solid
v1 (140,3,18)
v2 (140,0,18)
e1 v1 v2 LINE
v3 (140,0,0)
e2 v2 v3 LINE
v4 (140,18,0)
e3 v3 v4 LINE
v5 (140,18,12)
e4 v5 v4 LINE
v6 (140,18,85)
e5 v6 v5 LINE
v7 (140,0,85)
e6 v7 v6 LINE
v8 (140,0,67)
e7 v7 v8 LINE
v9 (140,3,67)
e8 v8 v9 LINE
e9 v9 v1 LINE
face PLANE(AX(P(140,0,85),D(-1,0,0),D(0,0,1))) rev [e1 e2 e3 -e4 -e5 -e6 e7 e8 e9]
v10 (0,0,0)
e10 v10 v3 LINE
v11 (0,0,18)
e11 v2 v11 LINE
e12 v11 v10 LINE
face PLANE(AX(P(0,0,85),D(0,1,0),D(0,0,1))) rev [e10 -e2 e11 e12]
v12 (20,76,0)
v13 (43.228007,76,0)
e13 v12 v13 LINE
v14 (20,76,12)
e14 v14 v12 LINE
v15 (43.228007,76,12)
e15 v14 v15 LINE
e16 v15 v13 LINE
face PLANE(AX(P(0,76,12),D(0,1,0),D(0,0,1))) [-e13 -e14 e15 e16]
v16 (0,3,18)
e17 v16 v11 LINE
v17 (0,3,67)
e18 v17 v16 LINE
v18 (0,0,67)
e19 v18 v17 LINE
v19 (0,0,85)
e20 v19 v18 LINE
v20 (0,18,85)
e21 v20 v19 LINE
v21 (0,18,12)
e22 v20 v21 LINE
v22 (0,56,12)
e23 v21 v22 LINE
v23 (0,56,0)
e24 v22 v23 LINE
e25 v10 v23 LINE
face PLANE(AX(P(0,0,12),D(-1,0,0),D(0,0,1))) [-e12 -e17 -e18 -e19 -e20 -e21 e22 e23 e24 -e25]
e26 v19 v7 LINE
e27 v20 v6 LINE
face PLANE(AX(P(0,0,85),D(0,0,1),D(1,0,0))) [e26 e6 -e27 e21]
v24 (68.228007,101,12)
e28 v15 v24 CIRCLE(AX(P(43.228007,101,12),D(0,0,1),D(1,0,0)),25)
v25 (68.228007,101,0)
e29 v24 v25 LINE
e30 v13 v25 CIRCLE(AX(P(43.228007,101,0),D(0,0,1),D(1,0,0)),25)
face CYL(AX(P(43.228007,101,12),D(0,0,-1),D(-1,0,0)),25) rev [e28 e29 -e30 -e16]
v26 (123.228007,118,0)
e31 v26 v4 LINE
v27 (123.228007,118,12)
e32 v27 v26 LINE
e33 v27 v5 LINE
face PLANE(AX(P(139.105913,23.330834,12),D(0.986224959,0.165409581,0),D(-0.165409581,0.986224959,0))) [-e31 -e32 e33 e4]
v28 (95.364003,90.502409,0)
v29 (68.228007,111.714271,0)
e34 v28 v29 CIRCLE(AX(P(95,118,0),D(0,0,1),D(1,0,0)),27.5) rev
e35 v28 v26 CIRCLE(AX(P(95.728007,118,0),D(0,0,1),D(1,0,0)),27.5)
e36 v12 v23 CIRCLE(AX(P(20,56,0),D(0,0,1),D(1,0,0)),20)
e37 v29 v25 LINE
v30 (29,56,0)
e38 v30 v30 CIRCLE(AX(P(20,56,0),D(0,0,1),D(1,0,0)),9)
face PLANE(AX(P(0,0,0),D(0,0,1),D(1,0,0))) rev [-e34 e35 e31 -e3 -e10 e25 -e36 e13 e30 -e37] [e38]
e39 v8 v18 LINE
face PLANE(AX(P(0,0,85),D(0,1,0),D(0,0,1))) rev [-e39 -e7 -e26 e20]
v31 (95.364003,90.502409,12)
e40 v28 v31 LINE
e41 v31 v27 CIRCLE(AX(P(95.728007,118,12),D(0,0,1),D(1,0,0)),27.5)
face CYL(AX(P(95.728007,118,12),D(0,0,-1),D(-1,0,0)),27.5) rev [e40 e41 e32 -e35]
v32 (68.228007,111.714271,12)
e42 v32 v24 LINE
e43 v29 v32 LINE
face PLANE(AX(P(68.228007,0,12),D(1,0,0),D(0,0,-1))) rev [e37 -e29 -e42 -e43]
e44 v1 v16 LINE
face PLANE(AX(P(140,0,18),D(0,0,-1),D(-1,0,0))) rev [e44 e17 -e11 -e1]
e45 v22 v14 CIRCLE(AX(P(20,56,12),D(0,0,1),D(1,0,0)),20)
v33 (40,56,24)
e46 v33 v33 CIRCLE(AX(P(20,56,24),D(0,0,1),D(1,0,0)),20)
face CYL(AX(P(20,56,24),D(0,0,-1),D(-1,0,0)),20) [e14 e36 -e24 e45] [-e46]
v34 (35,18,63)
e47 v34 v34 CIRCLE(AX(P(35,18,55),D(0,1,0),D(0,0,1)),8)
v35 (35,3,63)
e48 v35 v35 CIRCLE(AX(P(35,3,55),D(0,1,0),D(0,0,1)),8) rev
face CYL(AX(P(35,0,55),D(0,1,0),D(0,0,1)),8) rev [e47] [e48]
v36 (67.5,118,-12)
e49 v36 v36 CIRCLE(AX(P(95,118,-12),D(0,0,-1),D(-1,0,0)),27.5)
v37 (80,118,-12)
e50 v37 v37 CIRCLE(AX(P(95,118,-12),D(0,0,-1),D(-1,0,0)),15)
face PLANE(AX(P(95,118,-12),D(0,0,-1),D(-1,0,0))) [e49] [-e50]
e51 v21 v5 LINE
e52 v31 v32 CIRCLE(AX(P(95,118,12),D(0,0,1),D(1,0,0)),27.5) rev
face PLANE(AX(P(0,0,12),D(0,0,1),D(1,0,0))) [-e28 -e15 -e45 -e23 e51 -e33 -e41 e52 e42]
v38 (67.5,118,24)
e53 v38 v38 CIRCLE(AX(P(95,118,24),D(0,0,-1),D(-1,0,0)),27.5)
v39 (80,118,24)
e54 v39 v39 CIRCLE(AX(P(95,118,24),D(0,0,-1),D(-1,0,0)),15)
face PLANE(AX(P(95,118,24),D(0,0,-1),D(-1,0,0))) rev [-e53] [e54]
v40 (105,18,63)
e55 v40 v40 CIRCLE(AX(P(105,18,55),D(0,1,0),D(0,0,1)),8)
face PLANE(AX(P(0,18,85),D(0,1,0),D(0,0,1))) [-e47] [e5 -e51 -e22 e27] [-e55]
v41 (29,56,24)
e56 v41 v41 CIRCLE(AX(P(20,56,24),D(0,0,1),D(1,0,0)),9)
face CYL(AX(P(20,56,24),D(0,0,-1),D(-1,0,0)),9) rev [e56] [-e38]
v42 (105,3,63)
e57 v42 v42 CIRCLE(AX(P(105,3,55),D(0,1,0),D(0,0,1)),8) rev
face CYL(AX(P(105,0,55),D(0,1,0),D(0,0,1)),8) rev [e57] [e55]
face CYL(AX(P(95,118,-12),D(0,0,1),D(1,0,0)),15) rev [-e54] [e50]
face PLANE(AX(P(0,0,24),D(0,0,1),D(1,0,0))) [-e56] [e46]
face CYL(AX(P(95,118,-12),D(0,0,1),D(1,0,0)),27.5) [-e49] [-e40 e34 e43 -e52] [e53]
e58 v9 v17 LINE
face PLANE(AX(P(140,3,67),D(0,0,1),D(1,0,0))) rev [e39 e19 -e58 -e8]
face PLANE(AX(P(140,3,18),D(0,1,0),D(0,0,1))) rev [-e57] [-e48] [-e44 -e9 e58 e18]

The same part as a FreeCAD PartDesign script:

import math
import FreeCAD as App
import Part
import Sketcher

V = App.Vector
Q = App.Units.Quantity

doc = App.newDocument("Part")
params = doc.addObject("Spreadsheet::Sheet", "Params")
for row, (alias, value) in enumerate([
    ("sketch1_radius", "25 mm"),
    ("sketch1_radius2", "20 mm"),
    ("sketch1_radius3", "27.5 mm"),
    ("sketch1_width", "140 mm"),
    ("sketch1_height", "17 mm"),
    ("pad1_length", "12 mm"),
    ("sketch2_diameter", "40 mm"),
    ("sketch2_diameter2", "18 mm"),
    ("pad2_length", "24 mm"),
    ("sketch3_width", "140 mm"),
    ("sketch3_height", "18 mm"),
    ("pad3_length", "85 mm"),
    ("sketch4_diameter", "55 mm"),
    ("sketch4_diameter2", "30 mm"),
    ("pad4_length", "36 mm"),
    ("sketch5_diameter", "16 mm"),
    ("sketch6_width", "3 mm"),
    ("sketch6_height", "49 mm"),
], start=1):
    params.set(f"A{row}", alias)
    params.set(f"B{row}", "=" + value)
    params.setAlias(f"B{row}", alias)

body = doc.addObject("PartDesign::Body", "Body")

# Sketch on XY plane
sketch1 = body.newObject("Sketcher::SketchObject", "Sketch")
sketch1.AttachmentSupport = (doc.getObject("XY_Plane"), [""])
sketch1.MapMode = "FlatFace"
sketch1.addGeometry(Part.LineSegment(V(140, 18, 0), V(123, 118, 0)), False)
sketch1.addGeometry(Part.ArcOfCircle(Part.Circle(V(96, 118, 0), V(0, 0, 1), 28), math.radians(180), math.radians(360)), False)
sketch1.addGeometry(Part.LineSegment(V(68, 118, 0), V(68, 101, 0)), False)
sketch1.addGeometry(Part.ArcOfCircle(Part.Circle(V(43, 101, 0), V(0, 0, 1), 25), math.radians(-90), math.radians(0)), False)
sketch1.addGeometry(Part.LineSegment(V(43, 76, 0), V(20, 76, 0)), False)
sketch1.addGeometry(Part.ArcOfCircle(Part.Circle(V(20, 56, 0), V(0, 0, 1), 20), math.radians(0), math.radians(90)), False)
sketch1.addGeometry(Part.ArcOfCircle(Part.Circle(V(20, 56, 0), V(0, 0, 1), 20), math.radians(180), math.radians(360)), False)
sketch1.addGeometry(Part.LineSegment(V(0, 56, 0), V(0, 18, 0)), False)
sketch1.addGeometry(Part.LineSegment(V(0, 18, 0), V(140, 18, 0)), False)
sketch1.addConstraint(Sketcher.Constraint("Coincident", 0, 2, 1, 2))
sketch1.addConstraint(Sketcher.Constraint("Tangent", 1, 1, 2, 1))
sketch1.addConstraint(Sketcher.Constraint("Tangent", 2, 2, 3, 2))
sketch1.addConstraint(Sketcher.Constraint("Tangent", 3, 1, 4, 1))
sketch1.addConstraint(Sketcher.Constraint("Tangent", 4, 2, 5, 2))
sketch1.addConstraint(Sketcher.Constraint("Tangent", 5, 1, 6, 2))
sketch1.addConstraint(Sketcher.Constraint("Tangent", 6, 1, 7, 1))
sketch1.addConstraint(Sketcher.Constraint("Coincident", 7, 2, 8, 1))
sketch1.addConstraint(Sketcher.Constraint("Coincident", 8, 2, 0, 1))
sketch1.addConstraint(Sketcher.Constraint("Vertical", 2))
sketch1.addConstraint(Sketcher.Constraint("Horizontal", 4))
sketch1.addConstraint(Sketcher.Constraint("Vertical", 7))
sketch1.addConstraint(Sketcher.Constraint("Horizontal", 8))
sketch1.addConstraint(Sketcher.Constraint("Equal", 5, 6))
sketch1.addConstraint(Sketcher.Constraint("PointOnObject", 6, 1, -2))
sketch1.addConstraint(Sketcher.Constraint("Horizontal", 1, 3, 0, 2))
sketch1.addConstraint(Sketcher.Constraint("Horizontal", 6, 3, 5, 1))
sketch1.addConstraint(Sketcher.Constraint("Radius", 3, Q("25 mm")))
sketch1.addConstraint(Sketcher.Constraint("Radius", 5, Q("20 mm")))
sketch1.addConstraint(Sketcher.Constraint("Radius", 1, Q("27.5 mm")))
sketch1.addConstraint(Sketcher.Constraint("DistanceX", 8, 1, 8, 2, Q("140 mm")))
sketch1.addConstraint(Sketcher.Constraint("DistanceY", 2, 2, 2, 1, Q("17 mm")))
sketch1.addConstraint(Sketcher.Constraint("DistanceY", 7, 2, 7, 1, Q("38 mm")))
sketch1.addConstraint(Sketcher.Constraint("DistanceY", -1, 1, 1, 3, Q("118 mm")))
sketch1.addConstraint(Sketcher.Constraint("DistanceX", 4, 2, 4, 1, Q("23.228007 mm")))
sketch1.setExpression("Constraints[17]", "Params.sketch1_radius")
sketch1.setExpression("Constraints[18]", "Params.sketch1_radius2")
sketch1.setExpression("Constraints[19]", "Params.sketch1_radius3")
sketch1.setExpression("Constraints[20]", "Params.sketch1_width")
sketch1.setExpression("Constraints[21]", "Params.sketch1_height")
pad1 = body.newObject("PartDesign::Pad", "Pad")
pad1.Profile = sketch1
pad1.setExpression("Length", "Params.pad1_length")

# Sketch on XY plane
sketch2 = body.newObject("Sketcher::SketchObject", "Sketch001")
sketch2.AttachmentSupport = (doc.getObject("XY_Plane"), [""])
sketch2.MapMode = "FlatFace"
sketch2.addGeometry(Part.Circle(V(20, 56, 0), V(0, 0, 1), 20), False)
sketch2.addGeometry(Part.Circle(V(20, 56, 0), V(0, 0, 1), 9), False)
sketch2.addConstraint(Sketcher.Constraint("Coincident", 1, 3, 0, 3))
sketch2.addConstraint(Sketcher.Constraint("Diameter", 0, Q("40 mm")))
sketch2.addConstraint(Sketcher.Constraint("Diameter", 1, Q("18 mm")))
sketch2.addConstraint(Sketcher.Constraint("DistanceX", -1, 1, 0, 3, Q("20 mm")))
sketch2.addConstraint(Sketcher.Constraint("DistanceY", -1, 1, 0, 3, Q("56 mm")))
sketch2.setExpression("Constraints[1]", "Params.sketch2_diameter")
sketch2.setExpression("Constraints[2]", "Params.sketch2_diameter2")
pad2 = body.newObject("PartDesign::Pad", "Pad001")
pad2.Profile = sketch2
pad2.setExpression("Length", "Params.pad2_length")

# Sketch on XY plane
sketch3 = body.newObject("Sketcher::SketchObject", "Sketch002")
sketch3.AttachmentSupport = (doc.getObject("XY_Plane"), [""])
sketch3.MapMode = "FlatFace"
sketch3.addGeometry(Part.LineSegment(V(0, 18, 0), V(0, 0, 0)), False)
sketch3.addGeometry(Part.LineSegment(V(0, 0, 0), V(140, 0, 0)), False)
sketch3.addGeometry(Part.LineSegment(V(140, 0, 0), V(140, 18, 0)), False)
sketch3.addGeometry(Part.LineSegment(V(140, 18, 0), V(0, 18, 0)), False)
sketch3.addConstraint(Sketcher.Constraint("Coincident", 0, 2, 1, 1))
sketch3.addConstraint(Sketcher.Constraint("Coincident", 1, 2, 2, 1))
sketch3.addConstraint(Sketcher.Constraint("Coincident", 2, 2, 3, 1))
sketch3.addConstraint(Sketcher.Constraint("Coincident", 3, 2, 0, 1))
sketch3.addConstraint(Sketcher.Constraint("Vertical", 0))
sketch3.addConstraint(Sketcher.Constraint("Horizontal", 1))
sketch3.addConstraint(Sketcher.Constraint("Vertical", 2))
sketch3.addConstraint(Sketcher.Constraint("Horizontal", 3))
sketch3.addConstraint(Sketcher.Constraint("Coincident", 0, 2, -1, 1))
sketch3.addConstraint(Sketcher.Constraint("DistanceX", 1, 1, 1, 2, Q("140 mm")))
sketch3.addConstraint(Sketcher.Constraint("DistanceY", 0, 2, 0, 1, Q("18 mm")))
sketch3.setExpression("Constraints[9]", "Params.sketch3_width")
sketch3.setExpression("Constraints[10]", "Params.sketch3_height")
pad3 = body.newObject("PartDesign::Pad", "Pad002")
pad3.Profile = sketch3
pad3.setExpression("Length", "Params.pad3_length")

# Sketch on XY plane
sketch4 = body.newObject("Sketcher::SketchObject", "Sketch003")
sketch4.AttachmentSupport = (doc.getObject("XY_Plane"), [""])
sketch4.MapMode = "FlatFace"
sketch4.AttachmentOffset = App.Placement(V(0, 0, 6), App.Rotation())
sketch4.addGeometry(Part.Circle(V(95, 118, 0), V(0, 0, 1), 28), False)
sketch4.addGeometry(Part.Circle(V(95, 118, 0), V(0, 0, 1), 15), False)
sketch4.addConstraint(Sketcher.Constraint("Coincident", 1, 3, 0, 3))
sketch4.addConstraint(Sketcher.Constraint("Diameter", 0, Q("55 mm")))
sketch4.addConstraint(Sketcher.Constraint("Diameter", 1, Q("30 mm")))
sketch4.addConstraint(Sketcher.Constraint("DistanceX", -1, 1, 0, 3, Q("95 mm")))
sketch4.addConstraint(Sketcher.Constraint("DistanceY", -1, 1, 0, 3, Q("118 mm")))
sketch4.setExpression("Constraints[1]", "Params.sketch4_diameter")
sketch4.setExpression("Constraints[2]", "Params.sketch4_diameter2")
pad4 = body.newObject("PartDesign::Pad", "Pad003")
pad4.Profile = sketch4
pad4.setExpression("Length", "Params.pad4_length")
pad4.Midplane = True

# Sketch on XZ plane
sketch5 = body.newObject("Sketcher::SketchObject", "Sketch004")
sketch5.AttachmentSupport = (doc.getObject("XZ_Plane"), [""])
sketch5.MapMode = "FlatFace"
sketch5.AttachmentOffset = App.Placement(V(0, 0, -18), App.Rotation())
sketch5.addGeometry(Part.Circle(V(105, 55, 0), V(0, 0, 1), 8), False)
sketch5.addGeometry(Part.Circle(V(35, 55, 0), V(0, 0, 1), 8), False)
sketch5.addConstraint(Sketcher.Constraint("Equal", 0, 1))
sketch5.addConstraint(Sketcher.Constraint("Horizontal", 0, 3, 1, 3))
sketch5.addConstraint(Sketcher.Constraint("Diameter", 0, Q("16 mm")))
sketch5.addConstraint(Sketcher.Constraint("DistanceX", -1, 1, 0, 3, Q("105 mm")))
sketch5.addConstraint(Sketcher.Constraint("DistanceY", -1, 1, 0, 3, Q("55 mm")))
sketch5.addConstraint(Sketcher.Constraint("DistanceX", -1, 1, 1, 3, Q("35 mm")))
sketch5.setExpression("Constraints[2]", "Params.sketch5_diameter")
pocket1 = body.newObject("PartDesign::Pocket", "Pocket")
pocket1.Profile = sketch5
pocket1.Type = "ThroughAll"
pocket1.Reversed = True

# Sketch on YZ plane
sketch6 = body.newObject("Sketcher::SketchObject", "Sketch005")
sketch6.AttachmentSupport = (doc.getObject("YZ_Plane"), [""])
sketch6.MapMode = "FlatFace"
sketch6.addGeometry(Part.LineSegment(V(3, 18, 0), V(0, 18, 0)), False)
sketch6.addGeometry(Part.LineSegment(V(0, 18, 0), V(0, 67, 0)), False)
sketch6.addGeometry(Part.LineSegment(V(0, 67, 0), V(3, 67, 0)), False)
sketch6.addGeometry(Part.LineSegment(V(3, 67, 0), V(3, 18, 0)), False)
sketch6.addConstraint(Sketcher.Constraint("Coincident", 0, 2, 1, 1))
sketch6.addConstraint(Sketcher.Constraint("Coincident", 1, 2, 2, 1))
sketch6.addConstraint(Sketcher.Constraint("Coincident", 2, 2, 3, 1))
sketch6.addConstraint(Sketcher.Constraint("Coincident", 3, 2, 0, 1))
sketch6.addConstraint(Sketcher.Constraint("Horizontal", 0))
sketch6.addConstraint(Sketcher.Constraint("Vertical", 1))
sketch6.addConstraint(Sketcher.Constraint("Horizontal", 2))
sketch6.addConstraint(Sketcher.Constraint("Vertical", 3))
sketch6.addConstraint(Sketcher.Constraint("PointOnObject", 0, 2, -2))
sketch6.addConstraint(Sketcher.Constraint("DistanceX", 0, 2, 0, 1, Q("3 mm")))
sketch6.addConstraint(Sketcher.Constraint("DistanceY", 1, 1, 1, 2, Q("49 mm")))
sketch6.addConstraint(Sketcher.Constraint("DistanceY", -1, 1, 0, 2, Q("18 mm")))
sketch6.setExpression("Constraints[9]", "Params.sketch6_width")
sketch6.setExpression("Constraints[10]", "Params.sketch6_height")
pocket2 = body.newObject("PartDesign::Pocket", "Pocket001")
pocket2.Profile = sketch6
pocket2.Type = "ThroughAll"
pocket2.Reversed = True

doc.recompute()
